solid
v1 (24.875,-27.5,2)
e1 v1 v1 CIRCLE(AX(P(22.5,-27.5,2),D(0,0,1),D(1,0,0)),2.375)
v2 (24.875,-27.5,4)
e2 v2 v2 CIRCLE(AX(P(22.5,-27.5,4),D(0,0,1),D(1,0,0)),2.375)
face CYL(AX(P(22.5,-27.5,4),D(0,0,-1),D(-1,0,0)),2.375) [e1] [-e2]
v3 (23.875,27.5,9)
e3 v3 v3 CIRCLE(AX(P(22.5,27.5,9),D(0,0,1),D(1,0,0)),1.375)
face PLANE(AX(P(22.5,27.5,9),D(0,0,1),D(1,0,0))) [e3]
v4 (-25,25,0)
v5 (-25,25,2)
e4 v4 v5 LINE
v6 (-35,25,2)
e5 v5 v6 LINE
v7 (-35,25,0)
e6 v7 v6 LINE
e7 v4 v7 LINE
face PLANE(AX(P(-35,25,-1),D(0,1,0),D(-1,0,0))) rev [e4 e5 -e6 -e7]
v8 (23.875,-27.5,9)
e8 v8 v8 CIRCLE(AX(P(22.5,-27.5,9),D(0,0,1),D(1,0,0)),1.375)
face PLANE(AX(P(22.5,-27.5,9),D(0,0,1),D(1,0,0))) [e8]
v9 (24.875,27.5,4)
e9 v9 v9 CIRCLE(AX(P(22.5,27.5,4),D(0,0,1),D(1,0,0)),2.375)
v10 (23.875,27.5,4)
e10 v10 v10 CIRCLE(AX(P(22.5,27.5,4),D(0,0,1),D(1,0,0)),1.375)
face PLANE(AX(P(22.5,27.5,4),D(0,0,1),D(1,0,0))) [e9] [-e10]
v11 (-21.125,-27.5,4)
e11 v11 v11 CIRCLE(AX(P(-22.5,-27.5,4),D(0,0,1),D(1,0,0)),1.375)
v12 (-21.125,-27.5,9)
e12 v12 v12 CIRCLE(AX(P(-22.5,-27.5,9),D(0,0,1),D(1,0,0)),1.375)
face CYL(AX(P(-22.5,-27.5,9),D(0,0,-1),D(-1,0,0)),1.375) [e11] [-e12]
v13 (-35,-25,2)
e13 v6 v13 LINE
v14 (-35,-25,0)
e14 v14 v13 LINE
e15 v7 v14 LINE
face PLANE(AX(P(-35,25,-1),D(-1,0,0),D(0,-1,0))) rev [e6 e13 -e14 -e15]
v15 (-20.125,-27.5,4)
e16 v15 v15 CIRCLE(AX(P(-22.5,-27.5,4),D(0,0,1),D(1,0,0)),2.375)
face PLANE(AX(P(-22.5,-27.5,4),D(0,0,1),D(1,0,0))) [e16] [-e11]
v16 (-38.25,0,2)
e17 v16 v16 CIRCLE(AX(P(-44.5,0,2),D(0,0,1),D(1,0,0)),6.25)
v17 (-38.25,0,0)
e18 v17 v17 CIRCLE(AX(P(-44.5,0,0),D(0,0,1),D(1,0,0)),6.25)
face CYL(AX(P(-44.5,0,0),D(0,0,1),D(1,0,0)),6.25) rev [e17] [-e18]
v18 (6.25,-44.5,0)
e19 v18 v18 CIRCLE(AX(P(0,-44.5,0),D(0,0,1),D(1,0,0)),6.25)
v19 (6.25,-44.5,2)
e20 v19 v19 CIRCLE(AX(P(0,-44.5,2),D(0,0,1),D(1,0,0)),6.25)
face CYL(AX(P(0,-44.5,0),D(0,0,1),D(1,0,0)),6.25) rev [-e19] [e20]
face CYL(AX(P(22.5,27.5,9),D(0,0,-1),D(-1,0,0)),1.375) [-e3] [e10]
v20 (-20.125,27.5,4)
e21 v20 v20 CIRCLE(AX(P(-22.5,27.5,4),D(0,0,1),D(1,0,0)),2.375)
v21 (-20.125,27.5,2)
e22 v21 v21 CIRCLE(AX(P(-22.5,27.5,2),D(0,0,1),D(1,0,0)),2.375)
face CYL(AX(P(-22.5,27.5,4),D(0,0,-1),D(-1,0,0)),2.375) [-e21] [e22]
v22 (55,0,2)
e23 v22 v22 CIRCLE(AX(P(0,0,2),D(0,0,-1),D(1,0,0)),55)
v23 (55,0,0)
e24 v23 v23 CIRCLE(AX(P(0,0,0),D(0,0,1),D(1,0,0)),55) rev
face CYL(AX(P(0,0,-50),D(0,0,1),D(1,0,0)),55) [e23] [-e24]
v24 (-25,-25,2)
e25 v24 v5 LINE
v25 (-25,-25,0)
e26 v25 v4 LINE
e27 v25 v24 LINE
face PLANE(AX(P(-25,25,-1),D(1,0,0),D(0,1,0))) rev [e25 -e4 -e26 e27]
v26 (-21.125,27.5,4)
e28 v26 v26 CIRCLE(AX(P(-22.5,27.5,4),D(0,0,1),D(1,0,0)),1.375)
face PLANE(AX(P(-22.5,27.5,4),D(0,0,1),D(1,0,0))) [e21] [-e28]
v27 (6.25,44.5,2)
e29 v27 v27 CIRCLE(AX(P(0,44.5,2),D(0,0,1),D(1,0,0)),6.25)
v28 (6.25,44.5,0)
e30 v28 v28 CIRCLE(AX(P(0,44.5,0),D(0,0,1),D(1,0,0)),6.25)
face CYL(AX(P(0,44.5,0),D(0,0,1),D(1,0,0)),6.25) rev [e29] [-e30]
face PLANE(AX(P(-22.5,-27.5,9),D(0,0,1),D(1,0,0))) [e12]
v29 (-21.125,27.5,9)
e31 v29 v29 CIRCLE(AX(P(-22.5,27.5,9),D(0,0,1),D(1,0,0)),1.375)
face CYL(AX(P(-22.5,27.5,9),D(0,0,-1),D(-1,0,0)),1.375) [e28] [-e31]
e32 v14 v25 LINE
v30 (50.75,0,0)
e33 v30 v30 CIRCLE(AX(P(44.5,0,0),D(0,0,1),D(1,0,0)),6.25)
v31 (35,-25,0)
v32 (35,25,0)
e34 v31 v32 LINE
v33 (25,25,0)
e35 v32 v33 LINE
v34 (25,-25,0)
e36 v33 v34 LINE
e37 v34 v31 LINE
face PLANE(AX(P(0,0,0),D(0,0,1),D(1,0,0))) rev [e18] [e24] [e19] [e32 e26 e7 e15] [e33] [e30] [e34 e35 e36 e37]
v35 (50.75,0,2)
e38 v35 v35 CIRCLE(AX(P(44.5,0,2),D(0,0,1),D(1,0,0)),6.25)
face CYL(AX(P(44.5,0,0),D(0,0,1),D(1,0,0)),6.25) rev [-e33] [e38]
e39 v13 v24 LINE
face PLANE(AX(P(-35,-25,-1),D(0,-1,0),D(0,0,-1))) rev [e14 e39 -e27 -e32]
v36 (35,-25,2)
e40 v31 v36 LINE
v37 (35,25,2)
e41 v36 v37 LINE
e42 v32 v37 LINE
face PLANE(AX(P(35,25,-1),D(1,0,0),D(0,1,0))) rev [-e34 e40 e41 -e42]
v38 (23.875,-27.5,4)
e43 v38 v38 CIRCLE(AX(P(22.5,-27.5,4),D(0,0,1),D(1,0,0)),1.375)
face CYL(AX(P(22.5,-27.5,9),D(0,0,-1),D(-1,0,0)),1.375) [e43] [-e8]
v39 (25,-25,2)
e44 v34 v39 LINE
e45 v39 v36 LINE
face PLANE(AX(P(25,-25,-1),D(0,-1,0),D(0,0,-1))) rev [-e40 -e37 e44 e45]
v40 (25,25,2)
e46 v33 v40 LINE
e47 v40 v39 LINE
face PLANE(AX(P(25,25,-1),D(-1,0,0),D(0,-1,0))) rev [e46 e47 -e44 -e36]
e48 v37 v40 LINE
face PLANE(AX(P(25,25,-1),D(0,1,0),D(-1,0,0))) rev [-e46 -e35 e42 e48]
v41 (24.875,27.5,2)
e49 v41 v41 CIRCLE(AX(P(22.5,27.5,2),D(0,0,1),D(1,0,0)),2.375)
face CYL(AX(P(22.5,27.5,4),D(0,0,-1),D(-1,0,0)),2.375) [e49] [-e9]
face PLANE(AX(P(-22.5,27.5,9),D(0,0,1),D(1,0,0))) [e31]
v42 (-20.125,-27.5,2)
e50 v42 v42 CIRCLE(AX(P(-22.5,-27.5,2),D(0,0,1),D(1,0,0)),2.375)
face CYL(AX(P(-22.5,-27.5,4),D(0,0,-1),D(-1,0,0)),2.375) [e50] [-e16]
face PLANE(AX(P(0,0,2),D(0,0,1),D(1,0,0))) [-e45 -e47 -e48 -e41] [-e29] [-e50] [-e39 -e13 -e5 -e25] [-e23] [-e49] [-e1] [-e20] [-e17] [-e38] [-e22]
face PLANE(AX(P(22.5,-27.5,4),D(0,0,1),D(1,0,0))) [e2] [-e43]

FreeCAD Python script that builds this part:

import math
import FreeCAD as App
import Part
import Sketcher
Q = App.Units.Quantity

doc = App.newDocument("Part")
params = doc.addObject("Spreadsheet::Sheet", "Params")
for row, (alias, value) in enumerate([
    ("sketch1_diameter", "118 mm"),
    ("pad1_length", "2 mm"),
    ("sketch2_diameter", "2.75 mm"),
    ("pad2_length", "7 mm"),
    ("sketch3_diameter", "4.75 mm"),
    ("pad3_length", "2 mm"),
    ("sketch4_radius", "56 mm"),
    ("sketch4_radius2", "59 mm"),
    ("pad4_length", "18 mm"),
    ("sketch5_diameter", "15 mm"),
    ("pocket1_length", "18 mm"),
    ("sketch6_diameter", "115 mm"),
    ("pocket2_length", "5 mm"),
    ("sketch7_radius", "59 mm"),
    ("sketch7_radius2", "57.45 mm"),
    ("pocket3_length", "5.5 mm"),
    ("sketch8_diameter", "114 mm"),
    ("pocket4_length", "22 mm"),
    ("sketch9_radius", "56 mm"),
    ("sketch9_radius2", "57 mm"),
    ("pocket5_length", "52 mm"),
    ("sketch10_radius", "55 mm"),
    ("sketch10_width", "10 mm"),
    ("pocket6_length", "52 mm"),
    ("sketch11_diameter", "110 mm"),
    ("pocket7_length", "10 mm"),
    ("sketch12_diameter", "110 mm"),
    ("pad5_length", "2 mm"),
    ("sketch13_diameter", "12.5 mm"),
    ("pocket8_length", "2 mm"),
    ("sketch14_width", "10 mm"),
    ("sketch14_height", "50 mm"),
    ("pocket9_length", "3 mm"),
], start=1):
    params.set(f"A{row}", alias)
    params.set(f"B{row}", "=" + value)
    params.setAlias(f"B{row}", alias)

body = doc.addObject("PartDesign::Body", "Body")

# Sketch on XY plane
sketch1 = body.newObject("Sketcher::SketchObject", "Sketch")
sketch1.AttachmentSupport = (doc.getObject("XY_Plane"), [""])
sketch1.MapMode = "FlatFace"
sketch1.addGeometry(Part.Circle(App.Vector(0, 0, 0), App.Vector(0, 0, 1), 59), False)
sketch1.addConstraint([
    Sketcher.Constraint("Coincident", 0, 3, -1, 1),
    Sketcher.Constraint("Diameter", 0, Q("118 mm")),
])
sketch1.setExpression("Constraints[1]", "Params.sketch1_diameter")
pad1 = body.newObject("PartDesign::Pad", "Pad")
pad1.Profile = sketch1
pad1.setExpression("Length", "Params.pad1_length")

# Sketch on XY plane
sketch2 = body.newObject("Sketcher::SketchObject", "Sketch001")
sketch2.AttachmentSupport = (doc.getObject("XY_Plane"), [""])
sketch2.MapMode = "FlatFace"
sketch2.AttachmentOffset = App.Placement(App.Vector(0, 0, 2), App.Rotation())
sketch2.addGeometry([
    Part.Circle(App.Vector(-22.5, 27.5, 0), App.Vector(0, 0, 1), 1.4),
    Part.Circle(App.Vector(22.5, 27.5, 0), App.Vector(0, 0, 1), 1.4),
    Part.Circle(App.Vector(22.5, -27.5, 0), App.Vector(0, 0, 1), 1.4),
    Part.Circle(App.Vector(-22.5, -27.5, 0), App.Vector(0, 0, 1), 1.4),
], False)
sketch2.addConstraint([
    Sketcher.Constraint("Equal", 0, 1),
    Sketcher.Constraint("Equal", 1, 2),
    Sketcher.Constraint("Equal", 2, 3),
    Sketcher.Constraint("Symmetric", 0, 3, 2, 3, -1, 1),
    Sketcher.Constraint("Symmetric", 1, 3, 3, 3, -1, 1),
    Sketcher.Constraint("Symmetric", 0, 3, 1, 3, -2),
    Sketcher.Constraint("Diameter", 0, Q("2.75 mm")),
    Sketcher.Constraint("DistanceX", 0, 3, 1, 3, Q("45 mm")),
    Sketcher.Constraint("DistanceY", 2, 3, 1, 3, Q("55 mm")),
])
sketch2.setExpression("Constraints[6]", "Params.sketch2_diameter")
pad2 = body.newObject("PartDesign::Pad", "Pad001")
pad2.Profile = sketch2
pad2.setExpression("Length", "Params.pad2_length")

# Sketch on XY plane
sketch3 = body.newObject("Sketcher::SketchObject", "Sketch002")
sketch3.AttachmentSupport = (doc.getObject("XY_Plane"), [""])
sketch3.MapMode = "FlatFace"
sketch3.AttachmentOffset = App.Placement(App.Vector(0, 0, 2), App.Rotation())
sketch3.addGeometry([
    Part.Circle(App.Vector(-22.5, 27.5, 0), App.Vector(0, 0, 1), 2.4),
    Part.Circle(App.Vector(22.5, 27.5, 0), App.Vector(0, 0, 1), 2.4),
    Part.Circle(App.Vector(-22.5, -27.5, 0), App.Vector(0, 0, 1), 2.4),
    Part.Circle(App.Vector(22.5, -27.5, 0), App.Vector(0, 0, 1), 2.4),
], False)
sketch3.addConstraint([
    Sketcher.Constraint("Equal", 0, 1),
    Sketcher.Constraint("Equal", 1, 2),
    Sketcher.Constraint("Equal", 2, 3),
    Sketcher.Constraint("Symmetric", 1, 3, 2, 3, -1, 1),
    Sketcher.Constraint("Symmetric", 0, 3, 3, 3, -1, 1),
    Sketcher.Constraint("Symmetric", 0, 3, 1, 3, -2),
    Sketcher.Constraint("Diameter", 0, Q("4.75 mm")),
    Sketcher.Constraint("DistanceX", 0, 3, 1, 3, Q("45 mm")),
    Sketcher.Constraint("DistanceY", 2, 3, 0, 3, Q("55 mm")),
])
sketch3.setExpression("Constraints[6]", "Params.sketch3_diameter")
pad3 = body.newObject("PartDesign::Pad", "Pad002")
pad3.Profile = sketch3
pad3.setExpression("Length", "Params.pad3_length")

# Sketch on XY plane
sketch4 = body.newObject("Sketcher::SketchObject", "Sketch003")
sketch4.AttachmentSupport = (doc.getObject("XY_Plane"), [""])
sketch4.MapMode = "FlatFace"
sketch4.AttachmentOffset = App.Placement(App.Vector(0, 0, 2), App.Rotation())
sketch4.addGeometry([
    Part.ArcOfCircle(Part.Circle(App.Vector(0, 0, 0), App.Vector(0, 0, 1), 56), math.radians(85.14), math.radians(94.86)),  # 0
    Part.LineSegment(App.Vector(4.7, 55.8, 0), App.Vector(5, 58.8, 0)),  # 1
    Part.ArcOfCircle(Part.Circle(App.Vector(0, 0, 0), App.Vector(0, 0, 1), 59), math.radians(85.14), math.radians(94.86)),  # 2
    Part.LineSegment(App.Vector(-5, 58.8, 0), App.Vector(-4.7, 55.8, 0)),  # 3
    Part.LineSegment(App.Vector(-55.8, 4.7, 0), App.Vector(-58.8, 5, 0)),  # 4
    Part.ArcOfCircle(Part.Circle(App.Vector(0, 0, 0), App.Vector(0, 0, 1), 59), math.radians(175.14), math.radians(184.86)),  # 5
    Part.LineSegment(App.Vector(-58.8, -5, 0), App.Vector(-55.8, -4.7, 0)),  # 6
    Part.ArcOfCircle(Part.Circle(App.Vector(0, 0, 0), App.Vector(0, 0, 1), 56), math.radians(175.14), math.radians(184.86)),  # 7
    Part.ArcOfCircle(Part.Circle(App.Vector(0, 0, 0), App.Vector(0, 0, 1), 59), math.radians(-4.86), math.radians(4.86)),  # 8
    Part.LineSegment(App.Vector(58.8, 5, 0), App.Vector(55.8, 4.7, 0)),  # 9
    Part.ArcOfCircle(Part.Circle(App.Vector(0, 0, 0), App.Vector(0, 0, 1), 56), math.radians(-4.86), math.radians(4.86)),  # 10
    Part.LineSegment(App.Vector(55.8, -4.7, 0), App.Vector(58.8, -5, 0)),  # 11
    Part.ArcOfCircle(Part.Circle(App.Vector(0, 0, 0), App.Vector(0, 0, 1), 56), math.radians(-94.86), math.radians(-85.14)),  # 12
    Part.LineSegment(App.Vector(-4.7, -55.8, 0), App.Vector(-5, -58.8, 0)),  # 13
    Part.ArcOfCircle(Part.Circle(App.Vector(0, 0, 0), App.Vector(0, 0, 1), 59), math.radians(-94.86), math.radians(-85.14)),  # 14
    Part.LineSegment(App.Vector(5, -58.8, 0), App.Vector(4.7, -55.8, 0)),  # 15
], False)
sketch4.addConstraint([
    Sketcher.Constraint("Coincident", 0, 1, 1, 1),
    Sketcher.Constraint("Coincident", 1, 2, 2, 1),
    Sketcher.Constraint("Coincident", 2, 2, 3, 1),
    Sketcher.Constraint("Coincident", 3, 2, 0, 2),
    Sketcher.Constraint("Coincident", 4, 2, 5, 1),
    Sketcher.Constraint("Coincident", 5, 2, 6, 1),
    Sketcher.Constraint("Coincident", 6, 2, 7, 2),
    Sketcher.Constraint("Coincident", 7, 1, 4, 1),
    Sketcher.Constraint("Coincident", 8, 2, 9, 1),
    Sketcher.Constraint("Coincident", 9, 2, 10, 2),
    Sketcher.Constraint("Coincident", 10, 1, 11, 1),
    Sketcher.Constraint("Coincident", 11, 2, 8, 1),
    Sketcher.Constraint("Coincident", 12, 1, 13, 1),
    Sketcher.Constraint("Coincident", 13, 2, 14, 1),
    Sketcher.Constraint("Coincident", 14, 2, 15, 1),
    Sketcher.Constraint("Coincident", 15, 2, 12, 2),
    Sketcher.Constraint("Coincident", 0, 3, -1, 1),
    Sketcher.Constraint("Coincident", 2, 3, -1, 1),
    Sketcher.Constraint("Coincident", 5, 3, -1, 1),
    Sketcher.Constraint("Coincident", 7, 3, -1, 1),
    Sketcher.Constraint("Coincident", 8, 3, -1, 1),
    Sketcher.Constraint("Coincident", 10, 3, -1, 1),
    Sketcher.Constraint("Coincident", 12, 3, -1, 1),
    Sketcher.Constraint("Coincident", 14, 3, -1, 1),
    Sketcher.Constraint("Equal", 2, 5),
    Sketcher.Constraint("Equal", 0, 7),
    Sketcher.Constraint("Equal", 5, 8),
    Sketcher.Constraint("Equal", 7, 10),
    Sketcher.Constraint("Equal", 10, 12),
    Sketcher.Constraint("Equal", 8, 14),
    Sketcher.Constraint("Perpendicular", 1, 4),
    Sketcher.Constraint("Perpendicular", 3, 6),
    Sketcher.Constraint("Parallel", 6, 9),
    Sketcher.Constraint("Parallel", 4, 11),
    Sketcher.Constraint("Perpendicular", 11, 13),
    Sketcher.Constraint("Perpendicular", 9, 15),
    Sketcher.Constraint("Horizontal", 1, 2, 2, 2),
    Sketcher.Constraint("Horizontal", 0, 1, 3, 2),
    Sketcher.Constraint("Horizontal", 4, 2, 8, 2),
    Sketcher.Constraint("Horizontal", 6, 2, 10, 1),
    Sketcher.Constraint("Horizontal", 13, 2, 14, 2),
    Sketcher.Constraint("Vertical", 4, 2, 5, 2),
    Sketcher.Constraint("Vertical", 3, 2, 12, 1),
    Sketcher.Constraint("Radius", 0, Q("56 mm")),
    Sketcher.Constraint("Radius", 2, Q("59 mm")),
    Sketcher.Constraint("DistanceX", -1, 1, 1, 2, Q("5 mm")),
    Sketcher.Constraint("DistanceY", -1, 1, 4, 2, Q("5 mm")),
    Sketcher.Constraint("DistanceX", -1, 1, 0, 1, Q("4.745763 mm")),
])
sketch4.setExpression("Constraints[43]", "Params.sketch4_radius")
sketch4.setExpression("Constraints[44]", "Params.sketch4_radius2")
pad4 = body.newObject("PartDesign::Pad", "Pad003")
pad4.Profile = sketch4
pad4.setExpression("Length", "Params.pad4_length")

# Sketch on XY plane
sketch5 = body.newObject("Sketcher::SketchObject", "Sketch004")
sketch5.AttachmentSupport = (doc.getObject("XY_Plane"), [""])
sketch5.MapMode = "FlatFace"
sketch5.AttachmentOffset = App.Placement(App.Vector(0, 0, 2), App.Rotation())
sketch5.addGeometry(Part.Circle(App.Vector(-40, 0, 0), App.Vector(0, 0, 1), 8), False)
sketch5.addConstraint([
    Sketcher.Constraint("PointOnObject", 0, 3, -1),
    Sketcher.Constraint("Diameter", 0, Q("15 mm")),
    Sketcher.Constraint("DistanceX", 0, 3, -1, 1, Q("40 mm")),
])
sketch5.setExpression("Constraints[1]", "Params.sketch5_diameter")
pocket1 = body.newObject("PartDesign::Pocket", "Pocket")
pocket1.Profile = sketch5
pocket1.setExpression("Length", "Params.pocket1_length")

# Sketch on XY plane
sketch6 = body.newObject("Sketcher::SketchObject", "Sketch005")
sketch6.AttachmentSupport = (doc.getObject("XY_Plane"), [""])
sketch6.MapMode = "FlatFace"
sketch6.AttachmentOffset = App.Placement(App.Vector(0, 0, 20), App.Rotation())
sketch6.addGeometry(Part.Circle(App.Vector(0, 0, 0), App.Vector(0, 0, 1), 58), False)
sketch6.addConstraint([
    Sketcher.Constraint("Coincident", 0, 3, -1, 1),
    Sketcher.Constraint("Diameter", 0, Q("115 mm")),
])
sketch6.setExpression("Constraints[1]", "Params.sketch6_diameter")
pocket2 = body.newObject("PartDesign::Pocket", "Pocket001")
pocket2.Profile = sketch6
pocket2.setExpression("Length", "Params.pocket2_length")

# Sketch on XY plane
sketch7 = body.newObject("Sketcher::SketchObject", "Sketch006")
sketch7.AttachmentSupport = (doc.getObject("XY_Plane"), [""])
sketch7.MapMode = "FlatFace"
sketch7.addGeometry([
    Part.LineSegment(App.Vector(57.2, 4.9, 0), App.Vector(58.8, 5, 0)),  # 0
    Part.ArcOfCircle(Part.Circle(App.Vector(0, 0, 0), App.Vector(0, 0, 1), 59), math.radians(-4.86), math.radians(4.86)),  # 1
    Part.LineSegment(App.Vector(58.8, -5, 0), App.Vector(57.2, -4.9, 0)),  # 2
    Part.ArcOfCircle(Part.Circle(App.Vector(0, 0, 0), App.Vector(0, 0, 1), 57.5), math.radians(-4.86), math.radians(4.86)),  # 3
    Part.ArcOfCircle(Part.Circle(App.Vector(0, 0, 0), App.Vector(0, 0, 1), 59), math.radians(85.14), math.radians(94.86)),  # 4
    Part.LineSegment(App.Vector(5, 58.8, 0), App.Vector(4.9, 57.2, 0)),  # 5
    Part.ArcOfCircle(Part.Circle(App.Vector(0, 0, 0), App.Vector(0, 0, 1), 57.5), math.radians(85.14), math.radians(94.86)),  # 6
    Part.LineSegment(App.Vector(-4.9, 57.2, 0), App.Vector(-5, 58.8, 0)),  # 7
    Part.LineSegment(App.Vector(4.9, -57.2, 0), App.Vector(5, -58.8, 0)),  # 8
    Part.ArcOfCircle(Part.Circle(App.Vector(0, 0, 0), App.Vector(0, 0, 1), 59), math.radians(-94.86), math.radians(-85.14)),  # 9
    Part.LineSegment(App.Vector(-5, -58.8, 0), App.Vector(-4.9, -57.2, 0)),  # 10
    Part.ArcOfCircle(Part.Circle(App.Vector(0, 0, 0), App.Vector(0, 0, 1), 57.5), math.radians(-94.86), math.radians(-85.14)),  # 11
    Part.ArcOfCircle(Part.Circle(App.Vector(0, 0, 0), App.Vector(0, 0, 1), 59), math.radians(175.14), math.radians(184.86)),  # 12
    Part.LineSegment(App.Vector(-58.8, 5, 0), App.Vector(-57.2, 4.9, 0)),  # 13
    Part.ArcOfCircle(Part.Circle(App.Vector(0, 0, 0), App.Vector(0, 0, 1), 57.5), math.radians(175.14), math.radians(184.86)),  # 14
    Part.LineSegment(App.Vector(-57.2, -4.9, 0), App.Vector(-58.8, -5, 0)),  # 15
], False)
sketch7.addConstraint([
    Sketcher.Constraint("Coincident", 0, 2, 1, 2),
    Sketcher.Constraint("Coincident", 1, 1, 2, 1),
    Sketcher.Constraint("Coincident", 2, 2, 3, 1),
    Sketcher.Constraint("Coincident", 3, 2, 0, 1),
    Sketcher.Constraint("Coincident", 4, 1, 5, 1),
    Sketcher.Constraint("Coincident", 5, 2, 6, 1),
    Sketcher.Constraint("Coincident", 6, 2, 7, 1),
    Sketcher.Constraint("Coincident", 7, 2, 4, 2),
    Sketcher.Constraint("Coincident", 8, 2, 9, 2),
    Sketcher.Constraint("Coincident", 9, 1, 10, 1),
    Sketcher.Constraint("Coincident", 10, 2, 11, 1),
    Sketcher.Constraint("Coincident", 11, 2, 8, 1),
    Sketcher.Constraint("Coincident", 12, 1, 13, 1),
    Sketcher.Constraint("Coincident", 13, 2, 14, 1),
    Sketcher.Constraint("Coincident", 14, 2, 15, 1),
    Sketcher.Constraint("Coincident", 15, 2, 12, 2),
    Sketcher.Constraint("Coincident", 1, 3, -1, 1),
    Sketcher.Constraint("Coincident", 3, 3, -1, 1),
    Sketcher.Constraint("Coincident", 4, 3, -1, 1),
    Sketcher.Constraint("Coincident", 6, 3, -1, 1),
    Sketcher.Constraint("Coincident", 9, 3, -1, 1),
    Sketcher.Constraint("Coincident", 11, 3, -1, 1),
    Sketcher.Constraint("Coincident", 12, 3, -1, 1),
    Sketcher.Constraint("Coincident", 14, 3, -1, 1),
    Sketcher.Constraint("Equal", 1, 4),
    Sketcher.Constraint("Equal", 3, 6),
    Sketcher.Constraint("Equal", 4, 9),
    Sketcher.Constraint("Equal", 6, 11),
    Sketcher.Constraint("Equal", 9, 12),
    Sketcher.Constraint("Equal", 11, 14),
    Sketcher.Constraint("Perpendicular", 2, 5),
    Sketcher.Constraint("Perpendicular", 0, 7),
    Sketcher.Constraint("Parallel", 7, 8),
    Sketcher.Constraint("Parallel", 5, 10),
    Sketcher.Constraint("Perpendicular", 10, 13),
    Sketcher.Constraint("Perpendicular", 8, 15),
    Sketcher.Constraint("Horizontal", 5, 2, 6, 2),
    Sketcher.Constraint("Horizontal", 4, 1, 7, 2),
    Sketcher.Constraint("Horizontal", 8, 2, 9, 1),
    Sketcher.Constraint("Horizontal", 0, 2, 12, 1),
    Sketcher.Constraint("Horizontal", 2, 2, 14, 2),
    Sketcher.Constraint("Vertical", 0, 2, 1, 1),
    Sketcher.Constraint("Vertical", 4, 1, 8, 2),
    Sketcher.Constraint("Radius", 1, Q("59 mm")),
    Sketcher.Constraint("Radius", 3, Q("57.45 mm")),
    Sketcher.Constraint("DistanceY", -1, 1, 0, 2, Q("5 mm")),
    Sketcher.Constraint("DistanceX", -1, 1, 4, 1, Q("5 mm")),
    Sketcher.Constraint("DistanceX", -1, 1, 2, 2, Q("57.24333 mm")),
])
sketch7.setExpression("Constraints[43]", "Params.sketch7_radius")
sketch7.setExpression("Constraints[44]", "Params.sketch7_radius2")
pocket3 = body.newObject("PartDesign::Pocket", "Pocket002")
pocket3.Profile = sketch7
pocket3.setExpression("Length", "Params.pocket3_length")
pocket3.Reversed = True

# Sketch on XY plane
sketch8 = body.newObject("Sketcher::SketchObject", "Sketch007")
sketch8.AttachmentSupport = (doc.getObject("XY_Plane"), [""])
sketch8.MapMode = "FlatFace"
sketch8.addGeometry([
    Part.Circle(App.Vector(0, 0, 0), App.Vector(0, 0, 1), 90),
    Part.Circle(App.Vector(0, 0, 0), App.Vector(0, 0, 1), 57),
], False)
sketch8.addConstraint([
    Sketcher.Constraint("Coincident", 0, 3, -1, 1),
    Sketcher.Constraint("Coincident", 1, 3, -1, 1),
    Sketcher.Constraint("Diameter", 1, Q("114 mm")),
    Sketcher.Constraint("Diameter", 0, Q("179.428042 mm")),
])
sketch8.setExpression("Constraints[2]", "Params.sketch8_diameter")
pocket4 = body.newObject("PartDesign::Pocket", "Pocket003")
pocket4.Profile = sketch8
pocket4.setExpression("Length", "Params.pocket4_length")
pocket4.Reversed = True

# Sketch on XY plane
sketch9 = body.newObject("Sketcher::SketchObject", "Sketch008")
sketch9.AttachmentSupport = (doc.getObject("XY_Plane"), [""])
sketch9.MapMode = "FlatFace"
sketch9.AttachmentOffset = App.Placement(App.Vector(0, 0, 2), App.Rotation())
sketch9.addGeometry([
    Part.Circle(App.Vector(0, 0, 0), App.Vector(0, 0, 1), 62.5),  # 0
    Part.LineSegment(App.Vector(56.8, 4.8, 0), App.Vector(55.8, 4.7, 0)),  # 1
    Part.ArcOfCircle(Part.Circle(App.Vector(0, 0, 0), App.Vector(0, 0, 1), 56), math.radians(-4.86), math.radians(4.86)),  # 2
    Part.LineSegment(App.Vector(55.8, -4.7, 0), App.Vector(56.8, -4.8, 0)),  # 3
    Part.ArcOfCircle(Part.Circle(App.Vector(0, 0, 0), App.Vector(0, 0, 1), 57), math.radians(-85), math.radians(-5)),  # 4
    Part.LineSegment(App.Vector(4.8, -56.8, 0), App.Vector(4.7, -55.8, 0)),  # 5
    Part.ArcOfCircle(Part.Circle(App.Vector(0, 0, 0), App.Vector(0, 0, 1), 56), math.radians(-94.86), math.radians(-85.14)),  # 6
    Part.LineSegment(App.Vector(-4.7, -55.8, 0), App.Vector(-4.8, -56.8, 0)),  # 7
    Part.ArcOfCircle(Part.Circle(App.Vector(0, 0, 0), App.Vector(0, 0, 1), 57), math.radians(-175), math.radians(-95)),  # 8
    Part.LineSegment(App.Vector(-56.8, -4.8, 0), App.Vector(-55.8, -4.7, 0)),  # 9
    Part.ArcOfCircle(Part.Circle(App.Vector(0, 0, 0), App.Vector(0, 0, 1), 56), math.radians(175.14), math.radians(184.86)),  # 10
    Part.LineSegment(App.Vector(-55.8, 4.7, 0), App.Vector(-56.8, 4.8, 0)),  # 11
    Part.ArcOfCircle(Part.Circle(App.Vector(0, 0, 0), App.Vector(0, 0, 1), 57), math.radians(95), math.radians(175)),  # 12
    Part.LineSegment(App.Vector(-4.8, 56.8, 0), App.Vector(-4.7, 55.8, 0)),  # 13
    Part.ArcOfCircle(Part.Circle(App.Vector(0, 0, 0), App.Vector(0, 0, 1), 56), math.radians(85.14), math.radians(94.86)),  # 14
    Part.LineSegment(App.Vector(4.7, 55.8, 0), App.Vector(4.8, 56.8, 0)),  # 15
    Part.ArcOfCircle(Part.Circle(App.Vector(0, 0, 0), App.Vector(0, 0, 1), 57), math.radians(5), math.radians(85)),  # 16
], False)
sketch9.addConstraint([
    Sketcher.Constraint("Coincident", 1, 2, 2, 2),
    Sketcher.Constraint("Coincident", 2, 1, 3, 1),
    Sketcher.Constraint("Coincident", 3, 2, 4, 2),
    Sketcher.Constraint("Coincident", 4, 1, 5, 1),
    Sketcher.Constraint("Coincident", 5, 2, 6, 2),
    Sketcher.Constraint("Coincident", 6, 1, 7, 1),
    Sketcher.Constraint("Coincident", 7, 2, 8, 2),
    Sketcher.Constraint("Coincident", 8, 1, 9, 1),
    Sketcher.Constraint("Coincident", 9, 2, 10, 2),
    Sketcher.Constraint("Coincident", 10, 1, 11, 1),
    Sketcher.Constraint("Coincident", 11, 2, 12, 2),
    Sketcher.Constraint("Coincident", 12, 1, 13, 1),
    Sketcher.Constraint("Coincident", 13, 2, 14, 2),
    Sketcher.Constraint("Coincident", 14, 1, 15, 1),
    Sketcher.Constraint("Coincident", 15, 2, 16, 2),
    Sketcher.Constraint("Coincident", 16, 1, 1, 1),
    Sketcher.Constraint("Coincident", 0, 3, -1, 1),
    Sketcher.Constraint("Coincident", 2, 3, -1, 1),
    Sketcher.Constraint("Coincident", 4, 3, -1, 1),
    Sketcher.Constraint("Coincident", 6, 3, -1, 1),
    Sketcher.Constraint("Coincident", 8, 3, -1, 1),
    Sketcher.Constraint("Coincident", 10, 3, -1, 1),
    Sketcher.Constraint("Coincident", 12, 3, -1, 1),
    Sketcher.Constraint("Coincident", 14, 3, -1, 1),
    Sketcher.Constraint("Coincident", 16, 3, -1, 1),
    Sketcher.Constraint("Equal", 2, 6),
    Sketcher.Constraint("Equal", 4, 8),
    Sketcher.Constraint("Equal", 6, 10),
    Sketcher.Constraint("Equal", 8, 12),
    Sketcher.Constraint("Equal", 10, 14),
    Sketcher.Constraint("Equal", 12, 16),
    Sketcher.Constraint("Perpendicular", 1, 5),
    Sketcher.Constraint("Perpendicular", 3, 7),
    Sketcher.Constraint("Perpendicular", 5, 9),
    Sketcher.Constraint("Perpendicular", 7, 11),
    Sketcher.Constraint("Perpendicular", 9, 13),
    Sketcher.Constraint("Perpendicular", 11, 15),
    Sketcher.Constraint("Horizontal", 5, 2, 6, 1),
    Sketcher.Constraint("Horizontal", 4, 1, 7, 2),
    Sketcher.Constraint("Horizontal", 3, 2, 8, 1),
    Sketcher.Constraint("Horizontal", 1, 2, 10, 1),
    Sketcher.Constraint("Horizontal", 13, 2, 14, 1),
    Sketcher.Constraint("Vertical", 1, 2, 2, 1),
    Sketcher.Constraint("Vertical", 7, 2, 12, 1),
    Sketcher.Constraint("Radius", 2, Q("56 mm")),
    Sketcher.Constraint("Radius", 4, Q("57 mm")),
    Sketcher.Constraint("Diameter", 0, Q("124.924046 mm")),
    Sketcher.Constraint("DistanceX", -1, 1, 3, 2, Q("56.794949 mm")),
    Sketcher.Constraint("DistanceX", -1, 1, 4, 1, Q("4.830508 mm")),
    Sketcher.Constraint("DistanceY", 3, 2, 1, 2, Q("9.576271 mm")),
])
sketch9.setExpression("Constraints[44]", "Params.sketch9_radius")
sketch9.setExpression("Constraints[45]", "Params.sketch9_radius2")
pocket5 = body.newObject("PartDesign::Pocket", "Pocket004")
pocket5.Profile = sketch9
pocket5.setExpression("Length", "Params.pocket5_length")
pocket5.Reversed = True

# Sketch on XY plane
sketch10 = body.newObject("Sketcher::SketchObject", "Sketch009")
sketch10.AttachmentSupport = (doc.getObject("XY_Plane"), [""])
sketch10.MapMode = "FlatFace"
sketch10.AttachmentOffset = App.Placement(App.Vector(0, 0, 2), App.Rotation())
sketch10.addGeometry([
    Part.LineSegment(App.Vector(5, 57, 0), App.Vector(-5, 57, 0)),  # 0
    Part.LineSegment(App.Vector(-5, 57, 0), App.Vector(-4.8, 54.8, 0)),  # 1
    Part.ArcOfCircle(Part.Circle(App.Vector(0, 0, 0), App.Vector(0, 0, 1), 55), math.radians(84.99), math.radians(95.01)),  # 2
    Part.LineSegment(App.Vector(4.8, 54.8, 0), App.Vector(5, 57, 0)),  # 3
    Part.LineSegment(App.Vector(57, 5, 0), App.Vector(54.8, 4.8, 0)),  # 4
    Part.ArcOfCircle(Part.Circle(App.Vector(0, 0, 0), App.Vector(0, 0, 1), 55), math.radians(-5.01), math.radians(5.01)),  # 5
    Part.LineSegment(App.Vector(54.8, -4.8, 0), App.Vector(57, -5, 0)),  # 6
    Part.LineSegment(App.Vector(57, -5, 0), App.Vector(57, 5, 0)),  # 7
    Part.LineSegment(App.Vector(5, -57, 0), App.Vector(4.8, -54.8, 0)),  # 8
    Part.ArcOfCircle(Part.Circle(App.Vector(0, 0, 0), App.Vector(0, 0, 1), 55), math.radians(-95.01), math.radians(-84.99)),  # 9
    Part.LineSegment(App.Vector(-4.8, -54.8, 0), App.Vector(-5, -57, 0)),  # 10
    Part.LineSegment(App.Vector(-5, -57, 0), App.Vector(5, -57, 0)),  # 11
    Part.LineSegment(App.Vector(-57, -5, 0), App.Vector(-54.8, -4.8, 0)),  # 12
    Part.ArcOfCircle(Part.Circle(App.Vector(0, 0, 0), App.Vector(0, 0, 1), 55), math.radians(174.99), math.radians(185.01)),  # 13
    Part.LineSegment(App.Vector(-54.8, 4.8, 0), App.Vector(-57, 5, 0)),  # 14
    Part.LineSegment(App.Vector(-57, 5, 0), App.Vector(-57, -5, 0)),  # 15
], False)
sketch10.addConstraint([
    Sketcher.Constraint("Coincident", 0, 2, 1, 1),
    Sketcher.Constraint("Coincident", 1, 2, 2, 2),
    Sketcher.Constraint("Coincident", 2, 1, 3, 1),
    Sketcher.Constraint("Coincident", 3, 2, 0, 1),
    Sketcher.Constraint("Coincident", 4, 2, 5, 2),
    Sketcher.Constraint("Coincident", 5, 1, 6, 1),
    Sketcher.Constraint("Coincident", 6, 2, 7, 1),
    Sketcher.Constraint("Coincident", 7, 2, 4, 1),
    Sketcher.Constraint("Coincident", 8, 2, 9, 2),
    Sketcher.Constraint("Coincident", 9, 1, 10, 1),
    Sketcher.Constraint("Coincident", 10, 2, 11, 1),
    Sketcher.Constraint("Coincident", 11, 2, 8, 1),
    Sketcher.Constraint("Coincident", 12, 2, 13, 2),
    Sketcher.Constraint("Coincident", 13, 1, 14, 1),
    Sketcher.Constraint("Coincident", 14, 2, 15, 1),
    Sketcher.Constraint("Coincident", 15, 2, 12, 1),
    Sketcher.Constraint("Horizontal", 0),
    Sketcher.Constraint("Vertical", 7),
    Sketcher.Constraint("Horizontal", 11),
    Sketcher.Constraint("Vertical", 15),
    Sketcher.Constraint("Coincident", 2, 3, -1, 1),
    Sketcher.Constraint("Coincident", 5, 3, -1, 1),
    Sketcher.Constraint("Coincident", 9, 3, -1, 1),
    Sketcher.Constraint("Coincident", 13, 3, -1, 1),
    Sketcher.Constraint("Equal", 2, 5),
    Sketcher.Constraint("Equal", 5, 9),
    Sketcher.Constraint("Equal", 9, 13),
    Sketcher.Constraint("Symmetric", 3, 2, 10, 2, -1, 1),
    Sketcher.Constraint("Symmetric", 6, 2, 14, 2, -1, 1),
    Sketcher.Constraint("Perpendicular", 1, 4),
    Sketcher.Constraint("Perpendicular", 3, 6),
    Sketcher.Constraint("Perpendicular", 4, 8),
    Sketcher.Constraint("Perpendicular", 6, 10),
    Sketcher.Constraint("Perpendicular", 8, 12),
    Sketcher.Constraint("Perpendicular", 10, 14),
    Sketcher.Constraint("Horizontal", 1, 2, 2, 1),
    Sketcher.Constraint("Horizontal", 8, 2, 9, 1),
    Sketcher.Constraint("Horizontal", 5, 1, 12, 2),
    Sketcher.Constraint("Horizontal", 4, 2, 13, 1),
    Sketcher.Constraint("Horizontal", 7, 2, 14, 2),
    Sketcher.Constraint("Equal", 11, 7),
    Sketcher.Constraint("Equal", 3, 4),
    Sketcher.Constraint("Radius", 2, Q("55 mm")),
    Sketcher.Constraint("DistanceX", 0, 2, 0, 1, Q("10 mm")),
    Sketcher.Constraint("DistanceY", -1, 1, 0, 2, Q("57 mm")),
    Sketcher.Constraint("DistanceY", -1, 1, 1, 2, Q("54.78961 mm")),
])
sketch10.setExpression("Constraints[42]", "Params.sketch10_radius")
sketch10.setExpression("Constraints[43]", "Params.sketch10_width")
pocket6 = body.newObject("PartDesign::Pocket", "Pocket005")
pocket6.Profile = sketch10
pocket6.setExpression("Length", "Params.pocket6_length")

# Sketch on XY plane
sketch11 = body.newObject("Sketcher::SketchObject", "Sketch010")
sketch11.AttachmentSupport = (doc.getObject("XY_Plane"), [""])
sketch11.MapMode = "FlatFace"
sketch11.AttachmentOffset = App.Placement(App.Vector(0, 0, 2), App.Rotation())
sketch11.addGeometry([
    Part.Circle(App.Vector(0, 0, 0), App.Vector(0, 0, 1), 81),
    Part.Circle(App.Vector(0, 0, 0), App.Vector(0, 0, 1), 55),
], False)
sketch11.addConstraint([
    Sketcher.Constraint("Coincident", 0, 3, -1, 1),
    Sketcher.Constraint("Coincident", 1, 3, -1, 1),
    Sketcher.Constraint("Diameter", 1, Q("110 mm")),
    Sketcher.Constraint("Diameter", 0, Q("161.24493 mm")),
])
sketch11.setExpression("Constraints[2]", "Params.sketch11_diameter")
pocket7 = body.newObject("PartDesign::Pocket", "Pocket006")
pocket7.Profile = sketch11
pocket7.setExpression("Length", "Params.pocket7_length")

# Sketch on XY plane
sketch12 = body.newObject("Sketcher::SketchObject", "Sketch011")
sketch12.AttachmentSupport = (doc.getObject("XY_Plane"), [""])
sketch12.MapMode = "FlatFace"
sketch12.AttachmentOffset = App.Placement(App.Vector(0, 0, 2), App.Rotation())
sketch12.addGeometry(Part.Circle(App.Vector(0, 0, 0), App.Vector(0, 0, 1), 55), False)
sketch12.addConstraint([
    Sketcher.Constraint("Coincident", 0, 3, -1, 1),
    Sketcher.Constraint("Diameter", 0, Q("110 mm")),
])
sketch12.setExpression("Constraints[1]", "Params.sketch12_diameter")
pad5 = body.newObject("PartDesign::Pad", "Pad004")
pad5.Profile = sketch12
pad5.setExpression("Length", "Params.pad5_length")
pad5.Reversed = True

# Sketch on XY plane
sketch13 = body.newObject("Sketcher::SketchObject", "Sketch012")
sketch13.AttachmentSupport = (doc.getObject("XY_Plane"), [""])
sketch13.MapMode = "FlatFace"
sketch13.AttachmentOffset = App.Placement(App.Vector(0, 0, 2), App.Rotation())
sketch13.addGeometry([
    Part.Circle(App.Vector(0, 44, 0), App.Vector(0, 0, 1), 6),
    Part.Circle(App.Vector(44, 0, 0), App.Vector(0, 0, 1), 6),
    Part.Circle(App.Vector(0, -44, 0), App.Vector(0, 0, 1), 6),
    Part.Circle(App.Vector(-44, 0, 0), App.Vector(0, 0, 1), 6),
], False)
sketch13.addConstraint([
    Sketcher.Constraint("Equal", 0, 1),
    Sketcher.Constraint("Equal", 1, 2),
    Sketcher.Constraint("Equal", 2, 3),
    Sketcher.Constraint("Symmetric", 0, 3, 2, 3, -1, 1),
    Sketcher.Constraint("Symmetric", 1, 3, 3, 3, -1, 1),
    Sketcher.Constraint("PointOnObject", 0, 3, -2),
    Sketcher.Constraint("PointOnObject", 1, 3, -1),
    Sketcher.Constraint("Diameter", 0, Q("12.5 mm")),
    Sketcher.Constraint("DistanceY", 2, 3, 0, 3, Q("89 mm")),
    Sketcher.Constraint("DistanceX", 3, 3, 1, 3, Q("89 mm")),
])
sketch13.setExpression("Constraints[7]", "Params.sketch13_diameter")
pocket8 = body.newObject("PartDesign::Pocket", "Pocket007")
pocket8.Profile = sketch13
pocket8.setExpression("Length", "Params.pocket8_length")

# Sketch on XY plane
sketch14 = body.newObject("Sketcher::SketchObject", "Sketch013")
sketch14.AttachmentSupport = (doc.getObject("XY_Plane"), [""])
sketch14.MapMode = "FlatFace"
sketch14.AttachmentOffset = App.Placement(App.Vector(0, 0, 2), App.Rotation())
sketch14.addGeometry([
    Part.LineSegment(App.Vector(25, 25, 0), App.Vector(25, -25, 0)),  # 0
    Part.LineSegment(App.Vector(25, -25, 0), App.Vector(35, -25, 0)),  # 1
    Part.LineSegment(App.Vector(35, -25, 0), App.Vector(35, 25, 0)),  # 2
    Part.LineSegment(App.Vector(35, 25, 0), App.Vector(25, 25, 0)),  # 3
    Part.LineSegment(App.Vector(-35, 25, 0), App.Vector(-35, -25, 0)),  # 4
    Part.LineSegment(App.Vector(-35, -25, 0), App.Vector(-25, -25, 0)),  # 5
    Part.LineSegment(App.Vector(-25, -25, 0), App.Vector(-25, 25, 0)),  # 6
    Part.LineSegment(App.Vector(-25, 25, 0), App.Vector(-35, 25, 0)),  # 7
], False)
sketch14.addConstraint([
    Sketcher.Constraint("Coincident", 0, 2, 1, 1),
    Sketcher.Constraint("Coincident", 1, 2, 2, 1),
    Sketcher.Constraint("Coincident", 2, 2, 3, 1),
    Sketcher.Constraint("Coincident", 3, 2, 0, 1),
    Sketcher.Constraint("Coincident", 4, 2, 5, 1),
    Sketcher.Constraint("Coincident", 5, 2, 6, 1),
    Sketcher.Constraint("Coincident", 6, 2, 7, 1),
    Sketcher.Constraint("Coincident", 7, 2, 4, 1),
    Sketcher.Constraint("Vertical", 0),
    Sketcher.Constraint("Horizontal", 1),
    Sketcher.Constraint("Vertical", 2),
    Sketcher.Constraint("Horizontal", 3),
    Sketcher.Constraint("Vertical", 4),
    Sketcher.Constraint("Horizontal", 5),
    Sketcher.Constraint("Vertical", 6),
    Sketcher.Constraint("Horizontal", 7),
    Sketcher.Constraint("Symmetric", 2, 2, 4, 2, -1, 1),
    Sketcher.Constraint("Symmetric", 0, 2, 6, 2, -1, 1),
    Sketcher.Constraint("Horizontal", 1, 2, 4, 2),
    Sketcher.Constraint("DistanceX", 1, 1, 1, 2, Q("10 mm")),
    Sketcher.Constraint("DistanceY", 0, 2, 0, 1, Q("50 mm")),
    Sketcher.Constraint("DistanceX", -1, 1, 0, 2, Q("25 mm")),
])
sketch14.setExpression("Constraints[19]", "Params.sketch14_width")
sketch14.setExpression("Constraints[20]", "Params.sketch14_height")
pocket9 = body.newObject("PartDesign::Pocket", "Pocket008")
pocket9.Profile = sketch14
pocket9.setExpression("Length", "Params.pocket9_length")

doc.recompute()
